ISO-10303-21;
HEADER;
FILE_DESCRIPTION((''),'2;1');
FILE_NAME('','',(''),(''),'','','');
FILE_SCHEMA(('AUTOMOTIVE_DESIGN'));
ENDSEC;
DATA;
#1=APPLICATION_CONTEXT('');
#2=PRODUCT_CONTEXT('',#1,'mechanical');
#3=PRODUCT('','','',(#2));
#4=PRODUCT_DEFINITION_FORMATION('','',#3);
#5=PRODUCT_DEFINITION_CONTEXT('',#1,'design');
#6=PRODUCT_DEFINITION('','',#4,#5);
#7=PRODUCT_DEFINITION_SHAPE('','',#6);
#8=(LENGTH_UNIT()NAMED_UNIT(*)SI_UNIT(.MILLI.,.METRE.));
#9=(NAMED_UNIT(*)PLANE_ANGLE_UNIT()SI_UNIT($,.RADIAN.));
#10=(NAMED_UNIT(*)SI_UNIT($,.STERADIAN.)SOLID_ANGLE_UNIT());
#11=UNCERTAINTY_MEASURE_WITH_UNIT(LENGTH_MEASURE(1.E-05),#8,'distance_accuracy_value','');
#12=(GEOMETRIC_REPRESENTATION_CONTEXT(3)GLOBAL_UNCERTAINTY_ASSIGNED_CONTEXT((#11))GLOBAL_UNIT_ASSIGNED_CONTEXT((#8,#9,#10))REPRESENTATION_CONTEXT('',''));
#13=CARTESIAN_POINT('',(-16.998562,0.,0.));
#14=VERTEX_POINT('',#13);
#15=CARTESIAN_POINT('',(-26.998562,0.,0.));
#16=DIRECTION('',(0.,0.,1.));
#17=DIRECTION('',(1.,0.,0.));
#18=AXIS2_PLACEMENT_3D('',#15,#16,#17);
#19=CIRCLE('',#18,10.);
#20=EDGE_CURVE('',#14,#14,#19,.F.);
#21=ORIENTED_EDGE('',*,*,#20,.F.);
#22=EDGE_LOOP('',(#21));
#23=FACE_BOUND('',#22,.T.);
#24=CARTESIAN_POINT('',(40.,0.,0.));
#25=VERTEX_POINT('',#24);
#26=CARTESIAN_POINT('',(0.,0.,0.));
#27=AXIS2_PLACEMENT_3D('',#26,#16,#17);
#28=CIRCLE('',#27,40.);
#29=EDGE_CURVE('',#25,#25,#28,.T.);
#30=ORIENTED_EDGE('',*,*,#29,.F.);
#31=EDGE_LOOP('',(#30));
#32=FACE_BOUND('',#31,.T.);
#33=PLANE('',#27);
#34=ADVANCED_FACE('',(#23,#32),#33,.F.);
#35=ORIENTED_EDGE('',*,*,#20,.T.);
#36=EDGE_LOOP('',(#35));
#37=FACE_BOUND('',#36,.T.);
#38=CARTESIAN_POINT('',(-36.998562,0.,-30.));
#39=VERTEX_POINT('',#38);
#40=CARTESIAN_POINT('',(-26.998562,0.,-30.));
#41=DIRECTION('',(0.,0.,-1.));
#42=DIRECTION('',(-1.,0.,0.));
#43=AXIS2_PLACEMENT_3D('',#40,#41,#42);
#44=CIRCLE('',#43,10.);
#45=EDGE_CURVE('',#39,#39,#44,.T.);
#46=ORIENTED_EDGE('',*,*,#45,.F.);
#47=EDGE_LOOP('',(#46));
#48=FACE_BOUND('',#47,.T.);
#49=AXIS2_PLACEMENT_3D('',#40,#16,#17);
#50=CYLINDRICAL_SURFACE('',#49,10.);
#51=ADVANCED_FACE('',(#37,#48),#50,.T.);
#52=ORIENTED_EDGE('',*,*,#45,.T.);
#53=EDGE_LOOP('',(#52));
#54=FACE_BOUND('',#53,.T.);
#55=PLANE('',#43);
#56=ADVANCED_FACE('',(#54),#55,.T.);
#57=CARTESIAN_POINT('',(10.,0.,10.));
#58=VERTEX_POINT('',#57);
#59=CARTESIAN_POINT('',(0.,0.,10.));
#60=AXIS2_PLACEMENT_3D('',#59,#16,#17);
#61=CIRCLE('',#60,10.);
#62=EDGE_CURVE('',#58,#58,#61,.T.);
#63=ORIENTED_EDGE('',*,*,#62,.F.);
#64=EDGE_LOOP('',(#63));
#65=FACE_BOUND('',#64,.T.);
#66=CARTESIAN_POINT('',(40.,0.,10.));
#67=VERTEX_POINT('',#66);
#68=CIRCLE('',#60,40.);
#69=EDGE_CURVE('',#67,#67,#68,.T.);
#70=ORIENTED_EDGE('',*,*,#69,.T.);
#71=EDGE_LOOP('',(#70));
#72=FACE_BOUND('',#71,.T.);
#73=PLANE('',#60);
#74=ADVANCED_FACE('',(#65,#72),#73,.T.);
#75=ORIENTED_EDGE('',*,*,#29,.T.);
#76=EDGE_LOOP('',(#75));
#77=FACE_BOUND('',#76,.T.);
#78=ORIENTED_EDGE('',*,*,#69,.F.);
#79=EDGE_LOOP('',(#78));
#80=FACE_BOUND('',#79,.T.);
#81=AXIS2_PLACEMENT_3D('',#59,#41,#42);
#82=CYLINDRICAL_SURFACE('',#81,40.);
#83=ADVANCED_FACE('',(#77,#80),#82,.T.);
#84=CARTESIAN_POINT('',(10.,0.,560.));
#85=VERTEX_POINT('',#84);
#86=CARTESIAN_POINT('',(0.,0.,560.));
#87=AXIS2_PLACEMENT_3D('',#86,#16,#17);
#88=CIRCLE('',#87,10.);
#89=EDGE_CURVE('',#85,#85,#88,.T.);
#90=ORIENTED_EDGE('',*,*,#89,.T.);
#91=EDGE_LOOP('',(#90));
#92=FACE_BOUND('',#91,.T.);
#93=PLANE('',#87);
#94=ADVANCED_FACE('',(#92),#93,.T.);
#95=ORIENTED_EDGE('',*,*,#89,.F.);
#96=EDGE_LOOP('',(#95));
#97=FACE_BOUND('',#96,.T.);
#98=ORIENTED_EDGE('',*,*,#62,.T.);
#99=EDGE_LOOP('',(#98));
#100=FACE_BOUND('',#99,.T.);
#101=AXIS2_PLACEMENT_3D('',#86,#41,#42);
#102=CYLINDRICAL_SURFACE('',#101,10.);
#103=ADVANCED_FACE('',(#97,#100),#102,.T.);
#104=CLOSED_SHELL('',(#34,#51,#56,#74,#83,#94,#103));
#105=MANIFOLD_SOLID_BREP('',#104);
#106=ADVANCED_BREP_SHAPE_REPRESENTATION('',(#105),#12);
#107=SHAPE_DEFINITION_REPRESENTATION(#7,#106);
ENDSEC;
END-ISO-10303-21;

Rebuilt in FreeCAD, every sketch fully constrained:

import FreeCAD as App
import Part
import Sketcher

doc = App.newDocument("Part")
body = doc.addObject("PartDesign::Body", "Body")

# Sketch on XY plane
sketch1 = body.newObject("Sketcher::SketchObject", "Sketch")
sketch1.AttachmentSupport = (doc.getObject("XY_Plane"), [""])
sketch1.MapMode = "FlatFace"
sketch1.addGeometry(Part.Circle(App.Vector(0, 0, 0), App.Vector(0, 0, 1), 40), False)
sketch1.addConstraint([
    Sketcher.Constraint("Coincident", 0, 3, -1, 1),
    Sketcher.Constraint("Diameter", 0, 80.0),
])
pad1 = body.newObject("PartDesign::Pad", "Pad")
pad1.Profile = sketch1
pad1.Length = 10

# Sketch on XY plane
sketch2 = body.newObject("Sketcher::SketchObject", "Sketch001")
sketch2.AttachmentSupport = (doc.getObject("XY_Plane"), [""])
sketch2.MapMode = "FlatFace"
sketch2.AttachmentOffset = App.Placement(App.Vector(0, 0, 10), App.Rotation())
sketch2.addGeometry(Part.Circle(App.Vector(0, 0, 0), App.Vector(0, 0, 1), 10), False)
sketch2.addConstraint([
    Sketcher.Constraint("Coincident", 0, 3, -1, 1),
    Sketcher.Constraint("Diameter", 0, 20.0),
])
pad2 = body.newObject("PartDesign::Pad", "Pad001")
pad2.Profile = sketch2
pad2.Length = 550

# Sketch on XY plane
sketch3 = body.newObject("Sketcher::SketchObject", "Sketch002")
sketch3.AttachmentSupport = (doc.getObject("XY_Plane"), [""])
sketch3.MapMode = "FlatFace"
sketch3.addGeometry(Part.Circle(App.Vector(-27, 0, 0), App.Vector(0, 0, 1), 10), False)
sketch3.addConstraint([
    Sketcher.Constraint("PointOnObject", 0, 3, -1),
    Sketcher.Constraint("Diameter", 0, 20.0),
    Sketcher.Constraint("DistanceX", 0, 3, -1, 1, 26.998562),
])
pad3 = body.newObject("PartDesign::Pad", "Pad002")
pad3.Profile = sketch3
pad3.Length = 30
pad3.Reversed = True

doc.recompute()
